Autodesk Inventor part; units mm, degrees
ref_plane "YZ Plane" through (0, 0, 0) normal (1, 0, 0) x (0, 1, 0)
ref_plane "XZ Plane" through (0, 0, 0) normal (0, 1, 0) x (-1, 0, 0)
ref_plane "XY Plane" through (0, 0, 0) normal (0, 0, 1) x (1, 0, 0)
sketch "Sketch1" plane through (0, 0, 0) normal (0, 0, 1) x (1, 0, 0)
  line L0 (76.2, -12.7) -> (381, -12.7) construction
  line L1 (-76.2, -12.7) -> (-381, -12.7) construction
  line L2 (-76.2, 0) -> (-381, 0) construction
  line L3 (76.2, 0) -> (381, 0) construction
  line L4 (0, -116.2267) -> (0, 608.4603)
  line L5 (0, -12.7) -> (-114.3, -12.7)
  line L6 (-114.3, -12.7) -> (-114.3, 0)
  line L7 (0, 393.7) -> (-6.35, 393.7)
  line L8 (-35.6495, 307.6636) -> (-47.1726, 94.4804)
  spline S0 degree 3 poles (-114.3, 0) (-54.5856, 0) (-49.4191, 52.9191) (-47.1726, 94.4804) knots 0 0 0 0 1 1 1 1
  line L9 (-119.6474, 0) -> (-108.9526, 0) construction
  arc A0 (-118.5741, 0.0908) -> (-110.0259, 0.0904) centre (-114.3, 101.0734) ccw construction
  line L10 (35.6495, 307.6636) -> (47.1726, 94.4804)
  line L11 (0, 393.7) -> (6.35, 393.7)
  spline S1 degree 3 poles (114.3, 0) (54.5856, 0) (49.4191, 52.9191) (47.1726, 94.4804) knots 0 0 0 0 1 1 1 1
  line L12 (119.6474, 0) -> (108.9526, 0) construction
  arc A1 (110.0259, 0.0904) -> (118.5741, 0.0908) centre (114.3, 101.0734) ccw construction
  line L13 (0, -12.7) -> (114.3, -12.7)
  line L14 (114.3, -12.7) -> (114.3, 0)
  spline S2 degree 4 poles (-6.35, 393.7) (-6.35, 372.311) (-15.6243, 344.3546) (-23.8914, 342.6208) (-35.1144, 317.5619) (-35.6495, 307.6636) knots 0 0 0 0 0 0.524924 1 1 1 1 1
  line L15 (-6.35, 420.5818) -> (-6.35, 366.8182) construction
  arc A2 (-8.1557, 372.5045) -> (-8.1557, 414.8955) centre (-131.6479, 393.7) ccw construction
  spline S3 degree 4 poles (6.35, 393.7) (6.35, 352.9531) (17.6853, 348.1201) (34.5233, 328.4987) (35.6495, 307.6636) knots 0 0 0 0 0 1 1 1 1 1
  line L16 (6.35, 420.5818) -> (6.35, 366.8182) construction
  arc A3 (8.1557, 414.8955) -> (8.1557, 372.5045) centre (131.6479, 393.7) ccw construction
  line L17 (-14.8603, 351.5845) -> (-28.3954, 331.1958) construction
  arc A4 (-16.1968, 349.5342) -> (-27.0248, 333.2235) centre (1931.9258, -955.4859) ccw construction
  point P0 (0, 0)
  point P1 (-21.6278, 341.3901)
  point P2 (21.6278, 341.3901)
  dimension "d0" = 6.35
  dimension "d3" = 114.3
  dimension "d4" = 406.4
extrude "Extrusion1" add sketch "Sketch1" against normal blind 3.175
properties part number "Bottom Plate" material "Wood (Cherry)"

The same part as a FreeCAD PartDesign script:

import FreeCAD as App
import Part
import Sketcher
from FreeCAD import Vector
Q = App.Units.Quantity

doc = App.newDocument("Part")
body = doc.addObject("PartDesign::Body", "Body")

# Sketch on XY plane
sketch1 = body.newObject("Sketcher::SketchObject", "Sketch")
sketch1.AttachmentSupport = (doc.getObject("XY_Plane"), [""])
sketch1.MapMode = "FlatFace"
sketch1.addGeometry(Part.LineSegment(Vector(-114.3, -12.7, 0), Vector(114.3, -12.7, 0)), False)
sketch1.addGeometry(Part.LineSegment(Vector(114.3, -12.7, 0), Vector(114.3, 0, 0)), False)
sketch1.addGeometry(Part.BSplineCurve([Vector(114.3, 0, 0), Vector(54.5856, 0, 0), Vector(49.4191, 52.9191, 0), Vector(47.1726, 94.4804, 0)], [4, 4], [0, 1], False, 3, [1, 1, 1, 1], False), False)
sketch1.addGeometry(Part.LineSegment(Vector(47.1726, 94.4804, 0), Vector(35.6495, 307.6636, 0)), False)
sketch1.addGeometry(Part.BSplineCurve([Vector(6.35, 393.7, 0), Vector(6.35, 352.9531, 0), Vector(17.6853, 348.1201, 0), Vector(34.5233, 328.4987, 0), Vector(35.6495, 307.6636, 0)], [5, 5], [0, 1], False, 4, [1, 1, 1, 1, 1], False), False)
sketch1.addGeometry(Part.LineSegment(Vector(6.35, 393.7, 0), Vector(-6.35, 393.7, 0)), False)
sketch1.addGeometry(Part.BSplineCurve([Vector(-6.35, 393.7, 0), Vector(-6.35, 372.311, 0), Vector(-15.6243, 344.3546, 0), Vector(-23.8914, 342.6208, 0), Vector(-35.1144, 317.5619, 0), Vector(-35.6495, 307.6636, 0)], [5, 1, 5], [0, 0.524924, 1], False, 4, [1, 1, 1, 1, 1, 1], False), False)
sketch1.addGeometry(Part.LineSegment(Vector(-35.6495, 307.6636, 0), Vector(-47.1726, 94.4804, 0)), False)
sketch1.addGeometry(Part.BSplineCurve([Vector(-114.3, 0, 0), Vector(-54.5856, 0, 0), Vector(-49.4191, 52.9191, 0), Vector(-47.1726, 94.4804, 0)], [4, 4], [0, 1], False, 3, [1, 1, 1, 1], False), False)
sketch1.addGeometry(Part.LineSegment(Vector(-114.3, 0, 0), Vector(-114.3, -12.7, 0)), False)
sketch1.addConstraint(Sketcher.Constraint("Block", 2))
sketch1.addConstraint(Sketcher.Constraint("Block", 4))
sketch1.addConstraint(Sketcher.Constraint("Block", 6))
sketch1.addConstraint(Sketcher.Constraint("Block", 8))
sketch1.addConstraint(Sketcher.Constraint("Coincident", 0, 2, 1, 1))
sketch1.addConstraint(Sketcher.Constraint("Coincident", 1, 2, 2, 1))
sketch1.addConstraint(Sketcher.Constraint("Coincident", 2, 2, 3, 1))
sketch1.addConstraint(Sketcher.Constraint("Coincident", 3, 2, 4, 2))
sketch1.addConstraint(Sketcher.Constraint("Coincident", 4, 1, 5, 1))
sketch1.addConstraint(Sketcher.Constraint("Coincident", 5, 2, 6, 1))
sketch1.addConstraint(Sketcher.Constraint("Coincident", 6, 2, 7, 1))
sketch1.addConstraint(Sketcher.Constraint("Coincident", 7, 2, 8, 2))
sketch1.addConstraint(Sketcher.Constraint("Coincident", 8, 1, 9, 1))
sketch1.addConstraint(Sketcher.Constraint("Coincident", 9, 2, 0, 1))
sketch1.addConstraint(Sketcher.Constraint("Horizontal", 0))
sketch1.addConstraint(Sketcher.Constraint("Vertical", 1))
sketch1.addConstraint(Sketcher.Constraint("Vertical", 9))
sketch1.addConstraint(Sketcher.Constraint("Equal", 5, 1))
pad1 = body.newObject("PartDesign::Pad", "Pad")
pad1.Profile = sketch1
pad1.Length = Q("0.125 in")
pad1.Reversed = True

doc.recompute()
